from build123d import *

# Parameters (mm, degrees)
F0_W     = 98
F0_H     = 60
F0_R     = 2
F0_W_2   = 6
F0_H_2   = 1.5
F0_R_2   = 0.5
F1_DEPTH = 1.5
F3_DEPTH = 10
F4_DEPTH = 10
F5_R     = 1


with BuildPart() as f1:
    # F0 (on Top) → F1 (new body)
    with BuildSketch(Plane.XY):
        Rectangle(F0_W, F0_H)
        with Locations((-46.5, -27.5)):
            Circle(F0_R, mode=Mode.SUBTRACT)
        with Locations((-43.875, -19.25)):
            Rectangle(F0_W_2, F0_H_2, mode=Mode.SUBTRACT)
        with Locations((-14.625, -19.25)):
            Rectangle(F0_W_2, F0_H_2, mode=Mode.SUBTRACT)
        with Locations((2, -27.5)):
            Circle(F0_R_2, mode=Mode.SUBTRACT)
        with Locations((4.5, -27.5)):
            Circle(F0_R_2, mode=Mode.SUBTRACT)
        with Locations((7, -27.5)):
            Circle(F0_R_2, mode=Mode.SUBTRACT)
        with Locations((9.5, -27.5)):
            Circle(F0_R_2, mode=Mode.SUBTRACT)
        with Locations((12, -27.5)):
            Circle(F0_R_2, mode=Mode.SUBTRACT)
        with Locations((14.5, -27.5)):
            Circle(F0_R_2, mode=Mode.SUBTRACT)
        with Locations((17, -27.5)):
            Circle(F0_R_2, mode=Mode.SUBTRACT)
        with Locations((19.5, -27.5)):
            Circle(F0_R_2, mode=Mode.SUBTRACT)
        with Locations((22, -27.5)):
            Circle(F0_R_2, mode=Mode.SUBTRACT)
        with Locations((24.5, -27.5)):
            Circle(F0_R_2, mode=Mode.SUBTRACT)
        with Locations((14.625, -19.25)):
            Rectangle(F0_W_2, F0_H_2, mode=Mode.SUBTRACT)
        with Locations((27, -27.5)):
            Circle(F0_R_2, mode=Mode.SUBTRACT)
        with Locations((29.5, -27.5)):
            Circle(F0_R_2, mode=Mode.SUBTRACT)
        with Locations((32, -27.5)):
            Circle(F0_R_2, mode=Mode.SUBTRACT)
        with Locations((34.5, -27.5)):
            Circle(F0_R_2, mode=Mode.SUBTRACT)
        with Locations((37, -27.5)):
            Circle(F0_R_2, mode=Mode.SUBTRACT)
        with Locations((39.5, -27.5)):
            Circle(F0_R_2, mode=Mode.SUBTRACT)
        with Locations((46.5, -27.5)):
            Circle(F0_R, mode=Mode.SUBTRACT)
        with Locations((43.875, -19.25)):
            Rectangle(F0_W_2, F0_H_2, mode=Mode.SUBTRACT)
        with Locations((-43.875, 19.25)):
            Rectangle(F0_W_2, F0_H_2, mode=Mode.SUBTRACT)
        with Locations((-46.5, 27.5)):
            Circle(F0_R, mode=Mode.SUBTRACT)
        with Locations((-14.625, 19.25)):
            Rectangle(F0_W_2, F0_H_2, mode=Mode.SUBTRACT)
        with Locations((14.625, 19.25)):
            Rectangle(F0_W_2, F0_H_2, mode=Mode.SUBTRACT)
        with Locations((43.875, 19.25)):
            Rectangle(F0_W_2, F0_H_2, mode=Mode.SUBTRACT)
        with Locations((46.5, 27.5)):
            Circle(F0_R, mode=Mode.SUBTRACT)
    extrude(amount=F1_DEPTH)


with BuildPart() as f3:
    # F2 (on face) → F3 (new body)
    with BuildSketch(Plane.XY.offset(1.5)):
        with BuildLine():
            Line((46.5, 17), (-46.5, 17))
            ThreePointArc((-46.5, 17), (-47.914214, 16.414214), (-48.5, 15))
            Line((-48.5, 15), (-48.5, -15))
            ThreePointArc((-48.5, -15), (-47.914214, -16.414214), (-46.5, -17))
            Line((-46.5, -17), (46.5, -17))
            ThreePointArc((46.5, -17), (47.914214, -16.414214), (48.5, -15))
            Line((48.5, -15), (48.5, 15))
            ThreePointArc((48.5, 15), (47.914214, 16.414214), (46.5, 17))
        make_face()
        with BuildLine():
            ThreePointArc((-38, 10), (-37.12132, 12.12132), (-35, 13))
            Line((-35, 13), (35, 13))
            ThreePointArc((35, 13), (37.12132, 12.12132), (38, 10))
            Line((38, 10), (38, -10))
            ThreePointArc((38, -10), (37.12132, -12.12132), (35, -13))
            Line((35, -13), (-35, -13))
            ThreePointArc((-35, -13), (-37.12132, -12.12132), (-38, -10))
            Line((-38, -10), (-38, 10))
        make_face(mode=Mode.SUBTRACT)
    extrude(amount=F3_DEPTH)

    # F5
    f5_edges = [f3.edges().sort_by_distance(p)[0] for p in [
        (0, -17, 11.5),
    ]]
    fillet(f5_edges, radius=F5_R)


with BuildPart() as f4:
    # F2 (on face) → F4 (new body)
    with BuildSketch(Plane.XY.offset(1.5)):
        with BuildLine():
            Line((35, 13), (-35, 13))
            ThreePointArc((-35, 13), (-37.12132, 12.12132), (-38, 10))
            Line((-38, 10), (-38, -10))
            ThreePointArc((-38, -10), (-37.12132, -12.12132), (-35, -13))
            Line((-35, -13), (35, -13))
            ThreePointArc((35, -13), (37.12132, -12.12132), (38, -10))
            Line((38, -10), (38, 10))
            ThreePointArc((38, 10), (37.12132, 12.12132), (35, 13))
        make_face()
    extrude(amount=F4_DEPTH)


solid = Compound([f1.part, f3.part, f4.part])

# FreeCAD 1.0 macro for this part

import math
import FreeCAD as App
import Part
import Sketcher
from FreeCAD import Vector
Q = App.Units.Quantity


def edges_at(feature, points):
    """Names of the edges that pass closest to the given points."""
    edges = feature.Shape.Edges
    near = lambda p: min(range(len(edges)), key=lambda i: edges[i].distToShape(Part.Vertex(*p))[0])
    return sorted({f"Edge{near(p) + 1}" for p in points})

doc = App.newDocument("Part")
body = doc.addObject("PartDesign::Body", "Body")

# Sketch on XY plane
sketch1 = body.newObject("Sketcher::SketchObject", "Sketch")
sketch1.AttachmentSupport = (doc.getObject("XY_Plane"), [""])
sketch1.MapMode = "FlatFace"
sketch1.addGeometry([
    Part.LineSegment(Vector(-49, 30, 0), Vector(-49, -30, 0)),  # 0
    Part.LineSegment(Vector(-49, -30, 0), Vector(49, -30, 0)),  # 1
    Part.LineSegment(Vector(49, -30, 0), Vector(49, 30, 0)),  # 2
    Part.LineSegment(Vector(49, 30, 0), Vector(-49, 30, 0)),  # 3
    Part.Circle(Vector(-46.5, -27.5, 0), Vector(0, 0, 1), 2),  # 4
    Part.LineSegment(Vector(-40.9, -20, 0), Vector(-46.9, -20, 0)),  # 5
    Part.LineSegment(Vector(-46.9, -20, 0), Vector(-46.9, -18.5, 0)),  # 6
    Part.LineSegment(Vector(-46.9, -18.5, 0), Vector(-40.9, -18.5, 0)),  # 7
    Part.LineSegment(Vector(-40.9, -18.5, 0), Vector(-40.9, -20, 0)),  # 8
    Part.LineSegment(Vector(-11.6, -20, 0), Vector(-17.6, -20, 0)),  # 9
    Part.LineSegment(Vector(-17.6, -20, 0), Vector(-17.6, -18.5, 0)),  # 10
    Part.LineSegment(Vector(-17.6, -18.5, 0), Vector(-11.6, -18.5, 0)),  # 11
    Part.LineSegment(Vector(-11.6, -18.5, 0), Vector(-11.6, -20, 0)),  # 12
    Part.Circle(Vector(2, -27.5, 0), Vector(0, 0, 1), 0.5),  # 13
    Part.Circle(Vector(4.5, -27.5, 0), Vector(0, 0, 1), 0.5),  # 14
    Part.Circle(Vector(7, -27.5, 0), Vector(0, 0, 1), 0.5),  # 15
    Part.Circle(Vector(9.5, -27.5, 0), Vector(0, 0, 1), 0.5),  # 16
    Part.Circle(Vector(12, -27.5, 0), Vector(0, 0, 1), 0.5),  # 17
    Part.Circle(Vector(14.5, -27.5, 0), Vector(0, 0, 1), 0.5),  # 18
    Part.Circle(Vector(17, -27.5, 0), Vector(0, 0, 1), 0.5),  # 19
    Part.Circle(Vector(19.5, -27.5, 0), Vector(0, 0, 1), 0.5),  # 20
    Part.Circle(Vector(22, -27.5, 0), Vector(0, 0, 1), 0.5),  # 21
    Part.LineSegment(Vector(17.6, -20, 0), Vector(11.6, -20, 0)),  # 22
    Part.LineSegment(Vector(11.6, -20, 0), Vector(11.6, -18.5, 0)),  # 23
    Part.LineSegment(Vector(11.6, -18.5, 0), Vector(17.6, -18.5, 0)),  # 24
    Part.LineSegment(Vector(17.6, -18.5, 0), Vector(17.6, -20, 0)),  # 25
    Part.Circle(Vector(24.5, -27.5, 0), Vector(0, 0, 1), 0.5),  # 26
    Part.Circle(Vector(27, -27.5, 0), Vector(0, 0, 1), 0.5),  # 27
    Part.Circle(Vector(29.5, -27.5, 0), Vector(0, 0, 1), 0.5),  # 28
    Part.Circle(Vector(32, -27.5, 0), Vector(0, 0, 1), 0.5),  # 29
    Part.Circle(Vector(34.5, -27.5, 0), Vector(0, 0, 1), 0.5),  # 30
    Part.Circle(Vector(37, -27.5, 0), Vector(0, 0, 1), 0.5),  # 31
    Part.Circle(Vector(39.5, -27.5, 0), Vector(0, 0, 1), 0.5),  # 32
    Part.Circle(Vector(46.5, -27.5, 0), Vector(0, 0, 1), 2),  # 33
    Part.LineSegment(Vector(46.9, -20, 0), Vector(40.9, -20, 0)),  # 34
    Part.LineSegment(Vector(40.9, -20, 0), Vector(40.9, -18.5, 0)),  # 35
    Part.LineSegment(Vector(40.9, -18.5, 0), Vector(46.9, -18.5, 0)),  # 36
    Part.LineSegment(Vector(46.9, -18.5, 0), Vector(46.9, -20, 0)),  # 37
    Part.LineSegment(Vector(-40.9, 18.5, 0), Vector(-46.9, 18.5, 0)),  # 38
    Part.LineSegment(Vector(-46.9, 18.5, 0), Vector(-46.9, 20, 0)),  # 39
    Part.LineSegment(Vector(-46.9, 20, 0), Vector(-40.9, 20, 0)),  # 40
    Part.LineSegment(Vector(-40.9, 20, 0), Vector(-40.9, 18.5, 0)),  # 41
    Part.Circle(Vector(-46.5, 27.5, 0), Vector(0, 0, 1), 2),  # 42
    Part.LineSegment(Vector(-11.6, 18.5, 0), Vector(-17.6, 18.5, 0)),  # 43
    Part.LineSegment(Vector(-17.6, 18.5, 0), Vector(-17.6, 20, 0)),  # 44
    Part.LineSegment(Vector(-17.6, 20, 0), Vector(-11.6, 20, 0)),  # 45
    Part.LineSegment(Vector(-11.6, 20, 0), Vector(-11.6, 18.5, 0)),  # 46
    Part.LineSegment(Vector(17.6, 18.5, 0), Vector(11.6, 18.5, 0)),  # 47
    Part.LineSegment(Vector(11.6, 18.5, 0), Vector(11.6, 20, 0)),  # 48
    Part.LineSegment(Vector(11.6, 20, 0), Vector(17.6, 20, 0)),  # 49
    Part.LineSegment(Vector(17.6, 20, 0), Vector(17.6, 18.5, 0)),  # 50
    Part.LineSegment(Vector(46.9, 18.5, 0), Vector(40.9, 18.5, 0)),  # 51
    Part.LineSegment(Vector(40.9, 18.5, 0), Vector(40.9, 20, 0)),  # 52
    Part.LineSegment(Vector(40.9, 20, 0), Vector(46.9, 20, 0)),  # 53
    Part.LineSegment(Vector(46.9, 20, 0), Vector(46.9, 18.5, 0)),  # 54
    Part.Circle(Vector(46.5, 27.5, 0), Vector(0, 0, 1), 2),  # 55
], False)
sketch1.addConstraint([
    Sketcher.Constraint("Coincident", 0, 2, 1, 1),
    Sketcher.Constraint("Coincident", 1, 2, 2, 1),
    Sketcher.Constraint("Coincident", 2, 2, 3, 1),
    Sketcher.Constraint("Coincident", 3, 2, 0, 1),
    Sketcher.Constraint("Coincident", 5, 2, 6, 1),
    Sketcher.Constraint("Coincident", 6, 2, 7, 1),
    Sketcher.Constraint("Coincident", 7, 2, 8, 1),
    Sketcher.Constraint("Coincident", 8, 2, 5, 1),
    Sketcher.Constraint("Coincident", 9, 2, 10, 1),
    Sketcher.Constraint("Coincident", 10, 2, 11, 1),
    Sketcher.Constraint("Coincident", 11, 2, 12, 1),
    Sketcher.Constraint("Coincident", 12, 2, 9, 1),
    Sketcher.Constraint("Coincident", 22, 2, 23, 1),
    Sketcher.Constraint("Coincident", 23, 2, 24, 1),
    Sketcher.Constraint("Coincident", 24, 2, 25, 1),
    Sketcher.Constraint("Coincident", 25, 2, 22, 1),
    Sketcher.Constraint("Coincident", 34, 2, 35, 1),
    Sketcher.Constraint("Coincident", 35, 2, 36, 1),
    Sketcher.Constraint("Coincident", 36, 2, 37, 1),
    Sketcher.Constraint("Coincident", 37, 2, 34, 1),
    Sketcher.Constraint("Coincident", 38, 2, 39, 1),
    Sketcher.Constraint("Coincident", 39, 2, 40, 1),
    Sketcher.Constraint("Coincident", 40, 2, 41, 1),
    Sketcher.Constraint("Coincident", 41, 2, 38, 1),
    Sketcher.Constraint("Coincident", 43, 2, 44, 1),
    Sketcher.Constraint("Coincident", 44, 2, 45, 1),
    Sketcher.Constraint("Coincident", 45, 2, 46, 1),
    Sketcher.Constraint("Coincident", 46, 2, 43, 1),
    Sketcher.Constraint("Coincident", 47, 2, 48, 1),
    Sketcher.Constraint("Coincident", 48, 2, 49, 1),
    Sketcher.Constraint("Coincident", 49, 2, 50, 1),
    Sketcher.Constraint("Coincident", 50, 2, 47, 1),
    Sketcher.Constraint("Coincident", 51, 2, 52, 1),
    Sketcher.Constraint("Coincident", 52, 2, 53, 1),
    Sketcher.Constraint("Coincident", 53, 2, 54, 1),
    Sketcher.Constraint("Coincident", 54, 2, 51, 1),
    Sketcher.Constraint("Vertical", 0),
    Sketcher.Constraint("Horizontal", 1),
    Sketcher.Constraint("Vertical", 2),
    Sketcher.Constraint("Horizontal", 3),
    Sketcher.Constraint("Horizontal", 5),
    Sketcher.Constraint("Vertical", 6),
    Sketcher.Constraint("Horizontal", 7),
    Sketcher.Constraint("Vertical", 8),
    Sketcher.Constraint("Horizontal", 9),
    Sketcher.Constraint("Vertical", 10),
    Sketcher.Constraint("Horizontal", 11),
    Sketcher.Constraint("Vertical", 12),
    Sketcher.Constraint("Horizontal", 22),
    Sketcher.Constraint("Vertical", 23),
    Sketcher.Constraint("Horizontal", 24),
    Sketcher.Constraint("Vertical", 25),
    Sketcher.Constraint("Horizontal", 34),
    Sketcher.Constraint("Vertical", 35),
    Sketcher.Constraint("Horizontal", 36),
    Sketcher.Constraint("Vertical", 37),
    Sketcher.Constraint("Horizontal", 38),
    Sketcher.Constraint("Vertical", 39),
    Sketcher.Constraint("Horizontal", 40),
    Sketcher.Constraint("Vertical", 41),
    Sketcher.Constraint("Horizontal", 43),
    Sketcher.Constraint("Vertical", 44),
    Sketcher.Constraint("Horizontal", 45),
    Sketcher.Constraint("Vertical", 46),
    Sketcher.Constraint("Horizontal", 47),
    Sketcher.Constraint("Vertical", 48),
    Sketcher.Constraint("Horizontal", 49),
    Sketcher.Constraint("Vertical", 50),
    Sketcher.Constraint("Horizontal", 51),
    Sketcher.Constraint("Vertical", 52),
    Sketcher.Constraint("Horizontal", 53),
    Sketcher.Constraint("Vertical", 54),
    Sketcher.Constraint("Equal", 13, 14),
    Sketcher.Constraint("Equal", 14, 15),
    Sketcher.Constraint("Equal", 15, 16),
    Sketcher.Constraint("Equal", 16, 17),
    Sketcher.Constraint("Equal", 17, 18),
    Sketcher.Constraint("Equal", 18, 19),
    Sketcher.Constraint("Equal", 19, 20),
    Sketcher.Constraint("Equal", 20, 21),
    Sketcher.Constraint("Equal", 21, 26),
    Sketcher.Constraint("Equal", 26, 27),
    Sketcher.Constraint("Equal", 27, 28),
    Sketcher.Constraint("Equal", 28, 29),
    Sketcher.Constraint("Equal", 29, 30),
    Sketcher.Constraint("Equal", 30, 31),
    Sketcher.Constraint("Equal", 31, 32),
    Sketcher.Constraint("Equal", 4, 33),
    Sketcher.Constraint("Equal", 33, 42),
    Sketcher.Constraint("Equal", 42, 55),
    Sketcher.Constraint("Symmetric", 33, 3, 42, 3, -1, 1),
    Sketcher.Constraint("Symmetric", 4, 3, 55, 3, -1, 1),
    Sketcher.Constraint("Symmetric", 0, 2, 2, 2, -1, 1),
    Sketcher.Constraint("Symmetric", 36, 2, 38, 2, -1, 1),
    Sketcher.Constraint("Symmetric", 34, 2, 40, 2, -1, 1),
    Sketcher.Constraint("Symmetric", 24, 2, 43, 2, -1, 1),
    Sketcher.Constraint("Symmetric", 22, 2, 45, 2, -1, 1),
    Sketcher.Constraint("Symmetric", 11, 2, 47, 2, -1, 1),
    Sketcher.Constraint("Symmetric", 9, 2, 49, 2, -1, 1),
    Sketcher.Constraint("Symmetric", 7, 2, 51, 2, -1, 1),
    Sketcher.Constraint("Symmetric", 5, 2, 53, 2, -1, 1),
    Sketcher.Constraint("Symmetric", 4, 3, 33, 3, -2),
    Sketcher.Constraint("Symmetric", 12, 2, 22, 2, -2),
    Sketcher.Constraint("Symmetric", 10, 2, 24, 2, -2),
    Sketcher.Constraint("Symmetric", 8, 2, 34, 2, -2),
    Sketcher.Constraint("Symmetric", 6, 2, 36, 2, -2),
    Sketcher.Constraint("Horizontal", 4, 3, 13, 3),
    Sketcher.Constraint("Horizontal", 13, 3, 14, 3),
    Sketcher.Constraint("Horizontal", 14, 3, 15, 3),
    Sketcher.Constraint("Horizontal", 15, 3, 16, 3),
    Sketcher.Constraint("Horizontal", 16, 3, 17, 3),
    Sketcher.Constraint("Horizontal", 17, 3, 18, 3),
    Sketcher.Constraint("Horizontal", 18, 3, 19, 3),
    Sketcher.Constraint("Horizontal", 19, 3, 20, 3),
    Sketcher.Constraint("Horizontal", 20, 3, 21, 3),
    Sketcher.Constraint("Horizontal", 21, 3, 26, 3),
    Sketcher.Constraint("Horizontal", 26, 3, 27, 3),
    Sketcher.Constraint("Horizontal", 27, 3, 28, 3),
    Sketcher.Constraint("Horizontal", 28, 3, 29, 3),
    Sketcher.Constraint("Horizontal", 29, 3, 30, 3),
    Sketcher.Constraint("Horizontal", 30, 3, 31, 3),
    Sketcher.Constraint("Horizontal", 31, 3, 32, 3),
    Sketcher.Constraint("Horizontal", 8, 2, 9, 2),
    Sketcher.Constraint("Horizontal", 7, 2, 10, 2),
    Sketcher.Constraint("Equal", 7, 9),
    Sketcher.Constraint("Diameter", 4, Q("4 mm")),
    Sketcher.Constraint("Diameter", 13, Q("1 mm")),
    Sketcher.Constraint("DistanceX", 1, 1, 1, 2, Q("98 mm")),
    Sketcher.Constraint("DistanceX", 5, 2, 5, 1, Q("6 mm")),
    Sketcher.Constraint("DistanceY", 0, 2, 0, 1, Q("60 mm")),
    Sketcher.Constraint("DistanceY", 6, 1, 6, 2, Q("1.5 mm")),
    Sketcher.Constraint("DistanceX", -1, 1, 13, 3, Q("2 mm")),
    Sketcher.Constraint("DistanceX", -1, 1, 15, 3, Q("7 mm")),
    Sketcher.Constraint("DistanceX", -1, 1, 17, 3, Q("12 mm")),
    Sketcher.Constraint("DistanceX", -1, 1, 19, 3, Q("17 mm")),
    Sketcher.Constraint("DistanceX", -1, 1, 21, 3, Q("22 mm")),
    Sketcher.Constraint("DistanceX", -1, 1, 27, 3, Q("27 mm")),
    Sketcher.Constraint("DistanceX", -1, 1, 29, 3, Q("32 mm")),
    Sketcher.Constraint("DistanceX", -1, 1, 31, 3, Q("37 mm")),
    Sketcher.Constraint("DistanceY", 5, 2, -1, 1, Q("20 mm")),
    Sketcher.Constraint("DistanceX", 4, 3, 14, 3, Q("51 mm")),
    Sketcher.Constraint("DistanceX", 14, 3, 16, 3, Q("5 mm")),
    Sketcher.Constraint("DistanceX", 16, 3, 18, 3, Q("5 mm")),
    Sketcher.Constraint("DistanceX", 18, 3, 20, 3, Q("5 mm")),
    Sketcher.Constraint("DistanceX", 20, 3, 26, 3, Q("5 mm")),
    Sketcher.Constraint("DistanceX", 26, 3, 28, 3, Q("5 mm")),
    Sketcher.Constraint("DistanceX", 28, 3, 30, 3, Q("5 mm")),
    Sketcher.Constraint("DistanceX", 30, 3, 32, 3, Q("5 mm")),
    Sketcher.Constraint("DistanceX", 32, 3, 33, 3, Q("7 mm")),
    Sketcher.Constraint("DistanceY", 4, 3, 42, 3, Q("55 mm")),
    Sketcher.Constraint("DistanceX", 8, 2, 9, 2, Q("23.25 mm")),
    Sketcher.Constraint("DistanceX", 46, 2, 47, 2, Q("23.25 mm")),
])
pad1 = body.newObject("PartDesign::Pad", "Pad")
pad1.Profile = sketch1
pad1.Length = 1.5
body2 = doc.addObject("PartDesign::Body", "Body001")

# Sketch on XY plane
sketch2 = body2.newObject("Sketcher::SketchObject", "Sketch001")
sketch2.AttachmentSupport = (doc.getObject("XY_Plane001"), [""])
sketch2.MapMode = "FlatFace"
sketch2.AttachmentOffset = App.Placement(Vector(0, 0, 1.5), App.Rotation())
sketch2.addGeometry([
    Part.LineSegment(Vector(46.5, 17, 0), Vector(-46.5, 17, 0)),  # 0
    Part.ArcOfCircle(Part.Circle(Vector(-46.5, 15, 0), Vector(0, 0, 1), 2), math.radians(90), math.radians(180)),  # 1
    Part.LineSegment(Vector(-48.5, 15, 0), Vector(-48.5, -15, 0)),  # 2
    Part.ArcOfCircle(Part.Circle(Vector(-46.5, -15, 0), Vector(0, 0, 1), 2), math.radians(180), math.radians(270)),  # 3
    Part.LineSegment(Vector(-46.5, -17, 0), Vector(46.5, -17, 0)),  # 4
    Part.ArcOfCircle(Part.Circle(Vector(46.5, -15, 0), Vector(0, 0, 1), 2), math.radians(-90), math.radians(0)),  # 5
    Part.LineSegment(Vector(48.5, -15, 0), Vector(48.5, 15, 0)),  # 6
    Part.ArcOfCircle(Part.Circle(Vector(46.5, 15, 0), Vector(0, 0, 1), 2), math.radians(0), math.radians(90)),  # 7
    Part.LineSegment(Vector(-38, -10, 0), Vector(-38, 10, 0)),  # 8
    Part.ArcOfCircle(Part.Circle(Vector(-35, 10, 0), Vector(0, 0, 1), 3), math.radians(90), math.radians(180)),  # 9
    Part.LineSegment(Vector(-35, 13, 0), Vector(35, 13, 0)),  # 10
    Part.ArcOfCircle(Part.Circle(Vector(35, 10, 0), Vector(0, 0, 1), 3), math.radians(0), math.radians(90)),  # 11
    Part.LineSegment(Vector(38, 10, 0), Vector(38, -10, 0)),  # 12
    Part.ArcOfCircle(Part.Circle(Vector(35, -10, 0), Vector(0, 0, 1), 3), math.radians(-90), math.radians(0)),  # 13
    Part.LineSegment(Vector(35, -13, 0), Vector(-35, -13, 0)),  # 14
    Part.ArcOfCircle(Part.Circle(Vector(-35, -10, 0), Vector(0, 0, 1), 3), math.radians(-180), math.radians(-90)),  # 15
], False)
sketch2.addConstraint([
    Sketcher.Constraint("Tangent", 0, 2, 1, 1),
    Sketcher.Constraint("Tangent", 1, 2, 2, 1),
    Sketcher.Constraint("Tangent", 2, 2, 3, 1),
    Sketcher.Constraint("Tangent", 3, 2, 4, 1),
    Sketcher.Constraint("Tangent", 4, 2, 5, 1),
    Sketcher.Constraint("Tangent", 5, 2, 6, 1),
    Sketcher.Constraint("Tangent", 6, 2, 7, 1),
    Sketcher.Constraint("Tangent", 7, 2, 0, 1),
    Sketcher.Constraint("Tangent", 8, 2, 9, 2),
    Sketcher.Constraint("Tangent", 9, 1, 10, 1),
    Sketcher.Constraint("Tangent", 10, 2, 11, 2),
    Sketcher.Constraint("Tangent", 11, 1, 12, 1),
    Sketcher.Constraint("Tangent", 12, 2, 13, 2),
    Sketcher.Constraint("Tangent", 13, 1, 14, 1),
    Sketcher.Constraint("Tangent", 14, 2, 15, 2),
    Sketcher.Constraint("Tangent", 15, 1, 8, 1),
    Sketcher.Constraint("Horizontal", 0),
    Sketcher.Constraint("Vertical", 2),
    Sketcher.Constraint("Horizontal", 4),
    Sketcher.Constraint("Vertical", 6),
    Sketcher.Constraint("Vertical", 8),
    Sketcher.Constraint("Horizontal", 10),
    Sketcher.Constraint("Vertical", 12),
    Sketcher.Constraint("Horizontal", 14),
    Sketcher.Constraint("Equal", 1, 3),
    Sketcher.Constraint("Equal", 3, 5),
    Sketcher.Constraint("Equal", 5, 7),
    Sketcher.Constraint("Equal", 9, 11),
    Sketcher.Constraint("Equal", 11, 13),
    Sketcher.Constraint("Equal", 13, 15),
    Sketcher.Constraint("Symmetric", 1, 3, 5, 3, -1, 1),
    Sketcher.Constraint("Symmetric", 9, 3, 13, 3, -1, 1),
    Sketcher.Constraint("Radius", 1, Q("1.999999 mm")),
    Sketcher.Constraint("Radius", 9, Q("3.000001 mm")),
    Sketcher.Constraint("DistanceX", 0, 2, 0, 1, Q("93 mm")),
    Sketcher.Constraint("DistanceX", 10, 1, 10, 2, Q("70 mm")),
    Sketcher.Constraint("DistanceY", 2, 2, 2, 1, Q("30 mm")),
    Sketcher.Constraint("DistanceY", 8, 1, 8, 2, Q("20 mm")),
])
pad2 = body2.newObject("PartDesign::Pad", "Pad001")
pad2.Profile = sketch2
pad2.Length = 10
doc.recompute()

fillet = body2.newObject("PartDesign::Fillet", "Fillet")
fillet.Base = (pad2, edges_at(pad2, [(0, -17, 11.5)]))
fillet.Radius = 1
body3 = doc.addObject("PartDesign::Body", "Body002")

# Sketch on XY plane
sketch3 = body3.newObject("Sketcher::SketchObject", "Sketch002")
sketch3.AttachmentSupport = (doc.getObject("XY_Plane002"), [""])
sketch3.MapMode = "FlatFace"
sketch3.AttachmentOffset = App.Placement(Vector(0, 0, 1.5), App.Rotation())
sketch3.addGeometry([
    Part.LineSegment(Vector(35, 13, 0), Vector(-35, 13, 0)),  # 0
    Part.ArcOfCircle(Part.Circle(Vector(-35, 10, 0), Vector(0, 0, 1), 3), math.radians(90), math.radians(180)),  # 1
    Part.LineSegment(Vector(-38, 10, 0), Vector(-38, -10, 0)),  # 2
    Part.ArcOfCircle(Part.Circle(Vector(-35, -10, 0), Vector(0, 0, 1), 3), math.radians(-180), math.radians(-90)),  # 3
    Part.LineSegment(Vector(-35, -13, 0), Vector(35, -13, 0)),  # 4
    Part.ArcOfCircle(Part.Circle(Vector(35, -10, 0), Vector(0, 0, 1), 3), math.radians(-90), math.radians(0)),  # 5
    Part.LineSegment(Vector(38, -10, 0), Vector(38, 10, 0)),  # 6
    Part.ArcOfCircle(Part.Circle(Vector(35, 10, 0), Vector(0, 0, 1), 3), math.radians(0), math.radians(90)),  # 7
], False)
sketch3.addConstraint([
    Sketcher.Constraint("Tangent", 0, 2, 1, 1),
    Sketcher.Constraint("Tangent", 1, 2, 2, 1),
    Sketcher.Constraint("Tangent", 2, 2, 3, 1),
    Sketcher.Constraint("Tangent", 3, 2, 4, 1),
    Sketcher.Constraint("Tangent", 4, 2, 5, 1),
    Sketcher.Constraint("Tangent", 5, 2, 6, 1),
    Sketcher.Constraint("Tangent", 6, 2, 7, 1),
    Sketcher.Constraint("Tangent", 7, 2, 0, 1),
    Sketcher.Constraint("Horizontal", 0),
    Sketcher.Constraint("Vertical", 2),
    Sketcher.Constraint("Horizontal", 4),
    Sketcher.Constraint("Vertical", 6),
    Sketcher.Constraint("Equal", 1, 3),
    Sketcher.Constraint("Equal", 3, 5),
    Sketcher.Constraint("Equal", 5, 7),
    Sketcher.Constraint("Symmetric", 1, 3, 5, 3, -1, 1),
    Sketcher.Constraint("Radius", 1, Q("3.000001 mm")),
    Sketcher.Constraint("DistanceX", 0, 2, 0, 1, Q("70 mm")),
    Sketcher.Constraint("DistanceY", 2, 2, 2, 1, Q("20 mm")),
])
pad3 = body3.newObject("PartDesign::Pad", "Pad002")
pad3.Profile = sketch3
pad3.Length = 10

doc.recompute()
